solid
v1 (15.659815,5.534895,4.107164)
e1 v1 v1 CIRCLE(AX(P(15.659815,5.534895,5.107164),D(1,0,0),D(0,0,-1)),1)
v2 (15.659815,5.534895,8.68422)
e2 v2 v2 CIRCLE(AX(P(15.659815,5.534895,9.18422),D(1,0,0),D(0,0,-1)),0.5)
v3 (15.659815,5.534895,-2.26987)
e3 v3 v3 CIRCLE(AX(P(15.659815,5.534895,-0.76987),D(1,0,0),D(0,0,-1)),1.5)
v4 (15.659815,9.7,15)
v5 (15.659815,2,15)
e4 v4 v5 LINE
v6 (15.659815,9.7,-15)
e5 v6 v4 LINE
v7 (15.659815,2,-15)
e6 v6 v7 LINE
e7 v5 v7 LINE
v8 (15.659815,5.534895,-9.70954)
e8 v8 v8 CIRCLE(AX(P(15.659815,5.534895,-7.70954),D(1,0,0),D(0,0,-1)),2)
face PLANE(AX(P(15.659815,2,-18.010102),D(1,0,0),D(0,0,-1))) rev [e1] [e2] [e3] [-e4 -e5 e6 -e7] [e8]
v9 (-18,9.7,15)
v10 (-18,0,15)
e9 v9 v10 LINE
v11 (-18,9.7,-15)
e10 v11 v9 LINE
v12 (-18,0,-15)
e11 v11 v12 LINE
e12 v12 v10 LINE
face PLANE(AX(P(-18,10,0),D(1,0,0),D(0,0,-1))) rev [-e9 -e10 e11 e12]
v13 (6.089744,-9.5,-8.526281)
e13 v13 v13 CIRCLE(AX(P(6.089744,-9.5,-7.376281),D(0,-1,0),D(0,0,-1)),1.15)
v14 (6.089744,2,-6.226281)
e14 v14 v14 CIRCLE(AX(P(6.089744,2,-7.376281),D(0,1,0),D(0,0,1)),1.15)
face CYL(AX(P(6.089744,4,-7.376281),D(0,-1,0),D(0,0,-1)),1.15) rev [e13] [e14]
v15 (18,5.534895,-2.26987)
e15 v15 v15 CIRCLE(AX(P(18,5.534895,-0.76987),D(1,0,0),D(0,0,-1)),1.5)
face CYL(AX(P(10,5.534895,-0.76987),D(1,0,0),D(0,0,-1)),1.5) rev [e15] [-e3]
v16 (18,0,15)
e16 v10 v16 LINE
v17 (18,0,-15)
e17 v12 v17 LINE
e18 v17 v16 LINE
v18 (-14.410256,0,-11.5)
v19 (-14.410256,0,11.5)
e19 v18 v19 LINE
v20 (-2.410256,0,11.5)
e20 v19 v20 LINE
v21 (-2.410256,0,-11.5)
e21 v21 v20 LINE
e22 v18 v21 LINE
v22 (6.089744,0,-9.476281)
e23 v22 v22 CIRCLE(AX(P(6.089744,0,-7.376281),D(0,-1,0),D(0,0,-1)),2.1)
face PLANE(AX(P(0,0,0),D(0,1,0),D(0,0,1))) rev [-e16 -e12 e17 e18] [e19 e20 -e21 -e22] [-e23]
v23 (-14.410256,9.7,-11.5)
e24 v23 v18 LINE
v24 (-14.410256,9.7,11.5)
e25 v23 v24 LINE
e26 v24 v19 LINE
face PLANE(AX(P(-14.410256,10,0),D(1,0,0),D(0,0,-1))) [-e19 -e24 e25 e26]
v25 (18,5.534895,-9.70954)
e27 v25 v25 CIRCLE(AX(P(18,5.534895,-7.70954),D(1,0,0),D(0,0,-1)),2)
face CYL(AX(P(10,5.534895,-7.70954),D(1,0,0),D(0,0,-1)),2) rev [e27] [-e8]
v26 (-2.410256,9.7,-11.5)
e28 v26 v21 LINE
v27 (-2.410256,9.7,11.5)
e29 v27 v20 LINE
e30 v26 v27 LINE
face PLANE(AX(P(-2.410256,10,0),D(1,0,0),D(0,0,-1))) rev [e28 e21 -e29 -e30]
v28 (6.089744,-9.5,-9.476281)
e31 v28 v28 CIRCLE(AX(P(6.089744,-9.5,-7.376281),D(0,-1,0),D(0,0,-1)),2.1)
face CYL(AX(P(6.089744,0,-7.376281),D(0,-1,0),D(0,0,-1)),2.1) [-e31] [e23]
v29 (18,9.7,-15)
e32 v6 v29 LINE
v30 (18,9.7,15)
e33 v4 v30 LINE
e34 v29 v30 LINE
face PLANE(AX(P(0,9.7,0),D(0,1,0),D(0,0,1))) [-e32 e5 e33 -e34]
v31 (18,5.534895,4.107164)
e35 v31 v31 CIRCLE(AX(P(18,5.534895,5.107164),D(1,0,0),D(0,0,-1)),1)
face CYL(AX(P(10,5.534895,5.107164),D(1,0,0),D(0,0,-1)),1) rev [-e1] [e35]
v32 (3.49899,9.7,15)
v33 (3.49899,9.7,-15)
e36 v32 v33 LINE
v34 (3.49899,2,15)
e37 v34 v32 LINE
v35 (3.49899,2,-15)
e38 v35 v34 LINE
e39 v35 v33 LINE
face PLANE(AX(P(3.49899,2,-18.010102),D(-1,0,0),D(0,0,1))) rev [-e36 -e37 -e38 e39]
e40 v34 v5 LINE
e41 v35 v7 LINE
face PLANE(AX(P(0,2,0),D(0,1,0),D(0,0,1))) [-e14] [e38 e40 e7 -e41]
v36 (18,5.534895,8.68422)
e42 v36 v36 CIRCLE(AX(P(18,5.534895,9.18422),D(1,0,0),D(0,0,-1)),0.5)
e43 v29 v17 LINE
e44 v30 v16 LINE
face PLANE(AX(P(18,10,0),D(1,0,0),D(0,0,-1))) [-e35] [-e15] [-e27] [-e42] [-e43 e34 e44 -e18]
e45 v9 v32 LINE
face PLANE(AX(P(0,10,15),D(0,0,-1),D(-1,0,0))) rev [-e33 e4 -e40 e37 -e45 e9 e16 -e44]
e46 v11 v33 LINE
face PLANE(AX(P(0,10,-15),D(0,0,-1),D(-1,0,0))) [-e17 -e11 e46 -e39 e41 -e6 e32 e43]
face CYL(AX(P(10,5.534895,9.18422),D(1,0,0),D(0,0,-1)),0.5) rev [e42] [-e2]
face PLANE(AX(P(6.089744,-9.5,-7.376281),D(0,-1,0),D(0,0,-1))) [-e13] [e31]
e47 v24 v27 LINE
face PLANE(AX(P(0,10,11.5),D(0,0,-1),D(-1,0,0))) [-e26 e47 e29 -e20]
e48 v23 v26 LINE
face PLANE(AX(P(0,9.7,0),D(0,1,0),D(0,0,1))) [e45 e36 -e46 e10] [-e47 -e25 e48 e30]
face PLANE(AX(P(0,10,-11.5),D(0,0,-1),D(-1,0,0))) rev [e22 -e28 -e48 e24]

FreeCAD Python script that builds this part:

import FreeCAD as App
import Part
import Sketcher
Q = App.Units.Quantity

doc = App.newDocument("Part")
body = doc.addObject("PartDesign::Body", "Body")

# Sketch on XZ plane
sketch1 = body.newObject("Sketcher::SketchObject", "Sketch")
sketch1.AttachmentSupport = (doc.getObject("XZ_Plane"), [""])
sketch1.MapMode = "FlatFace"
sketch1.addGeometry([
    Part.LineSegment(App.Vector(-18, -15, 0), App.Vector(-18, 15, 0)),  # 0
    Part.LineSegment(App.Vector(-18, 15, 0), App.Vector(18, 15, 0)),  # 1
    Part.LineSegment(App.Vector(18, 15, 0), App.Vector(18, -15, 0)),  # 2
    Part.LineSegment(App.Vector(18, -15, 0), App.Vector(-18, -15, 0)),  # 3
    Part.LineSegment(App.Vector(-2, 12, 0), App.Vector(-14, 12, 0)),  # 4
    Part.LineSegment(App.Vector(-14, 12, 0), App.Vector(-14, -12, 0)),  # 5
    Part.LineSegment(App.Vector(-14, -12, 0), App.Vector(-2, -12, 0)),  # 6
    Part.LineSegment(App.Vector(-2, -12, 0), App.Vector(-2, 12, 0)),  # 7
], False)
sketch1.addConstraint([
    Sketcher.Constraint("Coincident", 0, 2, 1, 1),
    Sketcher.Constraint("Coincident", 1, 2, 2, 1),
    Sketcher.Constraint("Coincident", 2, 2, 3, 1),
    Sketcher.Constraint("Coincident", 3, 2, 0, 1),
    Sketcher.Constraint("Coincident", 4, 2, 5, 1),
    Sketcher.Constraint("Coincident", 5, 2, 6, 1),
    Sketcher.Constraint("Coincident", 6, 2, 7, 1),
    Sketcher.Constraint("Coincident", 7, 2, 4, 1),
    Sketcher.Constraint("Vertical", 0),
    Sketcher.Constraint("Horizontal", 1),
    Sketcher.Constraint("Vertical", 2),
    Sketcher.Constraint("Horizontal", 3),
    Sketcher.Constraint("Horizontal", 4),
    Sketcher.Constraint("Vertical", 5),
    Sketcher.Constraint("Horizontal", 6),
    Sketcher.Constraint("Vertical", 7),
    Sketcher.Constraint("Symmetric", 0, 2, 2, 2, -1, 1),
    Sketcher.Constraint("DistanceX", 1, 1, 1, 2, Q("36 mm")),
    Sketcher.Constraint("DistanceX", 4, 2, 4, 1, Q("12 mm")),
    Sketcher.Constraint("DistanceY", 0, 1, 0, 2, Q("30 mm")),
    Sketcher.Constraint("DistanceY", 5, 2, 5, 1, Q("23 mm")),
    Sketcher.Constraint("DistanceY", -1, 1, 4, 2, Q("11.5 mm")),
    Sketcher.Constraint("DistanceX", 4, 2, -1, 1, Q("14.410256 mm")),
])
pad1 = body.newObject("PartDesign::Pad", "Pad")
pad1.Profile = sketch1
pad1.Length = 10
pad1.Reversed = True

# Sketch on XZ plane
sketch2 = body.newObject("Sketcher::SketchObject", "Sketch001")
sketch2.AttachmentSupport = (doc.getObject("XZ_Plane"), [""])
sketch2.MapMode = "FlatFace"
sketch2.addGeometry(Part.Circle(App.Vector(6.1, -7.4, 0), App.Vector(0, 0, 1), 2.5), False)
sketch2.addConstraint([
    Sketcher.Constraint("Diameter", 0, Q("5.1 mm")),
    Sketcher.Constraint("DistanceY", 0, 3, -1, 1, Q("7.376281 mm")),
    Sketcher.Constraint("DistanceX", -1, 1, 0, 3, Q("6.089744 mm")),
])
pad2 = body.newObject("PartDesign::Pad", "Pad001")
pad2.Profile = sketch2
pad2.Length = 6

# Sketch on XZ plane
sketch3 = body.newObject("Sketcher::SketchObject", "Sketch002")
sketch3.AttachmentSupport = (doc.getObject("XZ_Plane"), [""])
sketch3.MapMode = "FlatFace"
sketch3.AttachmentOffset = App.Placement(App.Vector(0, 0, -10), App.Rotation())
sketch3.addGeometry([
    Part.LineSegment(App.Vector(3, -18, 0), App.Vector(3, 17, 0)),
    Part.LineSegment(App.Vector(3, 17, 0), App.Vector(16, 17, 0)),
    Part.LineSegment(App.Vector(16, 17, 0), App.Vector(16, -18, 0)),
    Part.LineSegment(App.Vector(16, -18, 0), App.Vector(3, -18, 0)),
], False)
sketch3.addConstraint([
    Sketcher.Constraint("Coincident", 0, 2, 1, 1),
    Sketcher.Constraint("Coincident", 1, 2, 2, 1),
    Sketcher.Constraint("Coincident", 2, 2, 3, 1),
    Sketcher.Constraint("Coincident", 3, 2, 0, 1),
    Sketcher.Constraint("Vertical", 0),
    Sketcher.Constraint("Horizontal", 1),
    Sketcher.Constraint("Vertical", 2),
    Sketcher.Constraint("Horizontal", 3),
    Sketcher.Constraint("DistanceY", 0, 1, 0, 2, Q("34.6856 mm")),
    Sketcher.Constraint("DistanceY", -1, 1, 0, 2, Q("16.675498 mm")),
    Sketcher.Constraint("DistanceX", 1, 1, 1, 2, Q("12.160825 mm")),
    Sketcher.Constraint("DistanceX", -1, 1, 0, 2, Q("3.49899 mm")),
])
pocket1 = body.newObject("PartDesign::Pocket", "Pocket")
pocket1.Profile = sketch3
pocket1.Length = 8
pocket1.Reversed = True

# Sketch on YZ plane
sketch4 = body.newObject("Sketcher::SketchObject", "Sketch003")
sketch4.AttachmentSupport = (doc.getObject("YZ_Plane"), [""])
sketch4.MapMode = "FlatFace"
sketch4.AttachmentOffset = App.Placement(App.Vector(0, 0, 18), App.Rotation())
sketch4.addGeometry([
    Part.Circle(App.Vector(5.5, 9.2, 0), App.Vector(0, 0, 1), 0.5),
    Part.Circle(App.Vector(5.5, 5.1, 0), App.Vector(0, 0, 1), 1),
    Part.Circle(App.Vector(5.5, -0.8, 0), App.Vector(0, 0, 1), 1.5),
    Part.Circle(App.Vector(5.5, -7.7, 0), App.Vector(0, 0, 1), 2),
], False)
sketch4.addConstraint([
    Sketcher.Constraint("Vertical", 0, 3, 1, 3),
    Sketcher.Constraint("Vertical", 1, 3, 2, 3),
    Sketcher.Constraint("Vertical", 2, 3, 3, 3),
    Sketcher.Constraint("Diameter", 0, Q("1 mm")),
    Sketcher.Constraint("Diameter", 1, Q("2 mm")),
    Sketcher.Constraint("Diameter", 2, Q("3 mm")),
    Sketcher.Constraint("Diameter", 3, Q("4 mm")),
    Sketcher.Constraint("DistanceY", -1, 1, 0, 3, Q("9.18422 mm")),
    Sketcher.Constraint("DistanceY", 2, 3, -1, 1, Q("0.76987 mm")),
    Sketcher.Constraint("DistanceY", 3, 3, -1, 1, Q("7.70954 mm")),
    Sketcher.Constraint("DistanceX", -1, 1, 0, 3, Q("5.534895 mm")),
    Sketcher.Constraint("DistanceY", -1, 1, 1, 3, Q("5.107164 mm")),
])
pocket2 = body.newObject("PartDesign::Pocket", "Pocket001")
pocket2.Profile = sketch4
pocket2.Length = 8

# Sketch on XZ plane
sketch5 = body.newObject("Sketcher::SketchObject", "Sketch004")
sketch5.AttachmentSupport = (doc.getObject("XZ_Plane"), [""])
sketch5.MapMode = "FlatFace"
sketch5.AttachmentOffset = App.Placement(App.Vector(0, 0, 6), App.Rotation())
sketch5.addGeometry(Part.Circle(App.Vector(5.8, -7.1, 0), App.Vector(0, 0, 1), 4.4), False)
sketch5.addConstraint([
    Sketcher.Constraint("Diameter", 0, Q("8.835925 mm")),
    Sketcher.Constraint("DistanceX", -1, 1, 0, 3, Q("5.79539 mm")),
    Sketcher.Constraint("DistanceY", 0, 3, -1, 1, Q("7.12847 mm")),
])
pocket3 = body.newObject("PartDesign::Pocket", "Pocket002")
pocket3.Profile = sketch5
pocket3.Length = 0.1

# Sketch on XZ plane
sketch6 = body.newObject("Sketcher::SketchObject", "Sketch005")
sketch6.AttachmentSupport = (doc.getObject("XZ_Plane"), [""])
sketch6.MapMode = "FlatFace"
sketch6.AttachmentOffset = App.Placement(App.Vector(0, 0, 5.9), App.Rotation())
sketch6.addGeometry(Part.Circle(App.Vector(6, -7, 0), App.Vector(0, 0, 1), 5), False)
sketch6.addConstraint([
    Sketcher.Constraint("Diameter", 0, Q("10.106461 mm")),
    Sketcher.Constraint("DistanceY", 0, 3, -1, 1, Q("7.296859 mm")),
    Sketcher.Constraint("DistanceX", -1, 1, 0, 3, Q("5.767325 mm")),
])
pocket4 = body.newObject("PartDesign::Pocket", "Pocket003")
pocket4.Profile = sketch6
pocket4.Length = 1.4

# Sketch on XZ plane
sketch7 = body.newObject("Sketcher::SketchObject", "Sketch006")
sketch7.AttachmentSupport = (doc.getObject("XZ_Plane"), [""])
sketch7.MapMode = "FlatFace"
sketch7.AttachmentOffset = App.Placement(App.Vector(0, 0, 4.5), App.Rotation())
sketch7.addGeometry(Part.Circle(App.Vector(6.1, -7.4, 0), App.Vector(0, 0, 1), 1), False)
sketch7.addConstraint([
    Sketcher.Constraint("Diameter", 0, Q("2 mm")),
    Sketcher.Constraint("DistanceY", 0, 3, -1, 1, Q("7.376281 mm")),
    Sketcher.Constraint("DistanceX", -1, 1, 0, 3, Q("6.089744 mm")),
])
pocket5 = body.newObject("PartDesign::Pocket", "Pocket004")
pocket5.Profile = sketch7
pocket5.Length = 10

# Sketch on XZ plane
sketch8 = body.newObject("Sketcher::SketchObject", "Sketch007")
sketch8.AttachmentSupport = (doc.getObject("XZ_Plane"), [""])
sketch8.MapMode = "FlatFace"
sketch8.AttachmentOffset = App.Placement(App.Vector(0, 0, 4.5), App.Rotation())
sketch8.addGeometry([
    Part.Circle(App.Vector(6.1, -7.4, 0), App.Vector(0, 0, 1), 2.5),
    Part.Circle(App.Vector(6.1, -7.4, 0), App.Vector(0, 0, 1), 1),
], False)
sketch8.addConstraint([
    Sketcher.Constraint("Coincident", 1, 3, 0, 3),
    Sketcher.Constraint("Diameter", 1, Q("2 mm")),
    Sketcher.Constraint("Diameter", 0, Q("5.1 mm")),
    Sketcher.Constraint("DistanceY", 0, 3, -1, 1, Q("7.376281 mm")),
    Sketcher.Constraint("DistanceX", -1, 1, 0, 3, Q("6.089744 mm")),
])
pad3 = body.newObject("PartDesign::Pad", "Pad002")
pad3.Profile = sketch8
pad3.Length = 5

# Sketch on XZ plane
sketch9 = body.newObject("Sketcher::SketchObject", "Sketch008")
sketch9.AttachmentSupport = (doc.getObject("XZ_Plane"), [""])
sketch9.MapMode = "FlatFace"
sketch9.AttachmentOffset = App.Placement(App.Vector(0, 0, 9.5), App.Rotation())
sketch9.addGeometry([
    Part.LineSegment(App.Vector(-24.1, 21.1, 0), App.Vector(-24.1, -21.1, 0)),  # 0
    Part.LineSegment(App.Vector(-24.1, -21.1, 0), App.Vector(24.1, -21.1, 0)),  # 1
    Part.LineSegment(App.Vector(24.1, -21.1, 0), App.Vector(24.1, 21.1, 0)),  # 2
    Part.LineSegment(App.Vector(24.1, 21.1, 0), App.Vector(-24.1, 21.1, 0)),  # 3
    Part.Circle(App.Vector(6.1, -7.4, 0), App.Vector(0, 0, 1), 2.1),  # 4
], False)
sketch9.addConstraint([
    Sketcher.Constraint("Coincident", 0, 2, 1, 1),
    Sketcher.Constraint("Coincident", 1, 2, 2, 1),
    Sketcher.Constraint("Coincident", 2, 2, 3, 1),
    Sketcher.Constraint("Coincident", 3, 2, 0, 1),
    Sketcher.Constraint("Vertical", 0),
    Sketcher.Constraint("Horizontal", 1),
    Sketcher.Constraint("Vertical", 2),
    Sketcher.Constraint("Horizontal", 3),
    Sketcher.Constraint("Symmetric", 0, 2, 2, 2, -1, 1),
    Sketcher.Constraint("Diameter", 4, Q("4.2 mm")),
    Sketcher.Constraint("DistanceX", 1, 1, 1, 2, Q("48.152 mm")),
    Sketcher.Constraint("DistanceY", 0, 2, 0, 1, Q("42.152 mm")),
    Sketcher.Constraint("DistanceY", 4, 3, -1, 1, Q("7.376281 mm")),
    Sketcher.Constraint("DistanceX", -1, 1, 4, 3, Q("6.089744 mm")),
])
pocket6 = body.newObject("PartDesign::Pocket", "Pocket005")
pocket6.Profile = sketch9
pocket6.Length = 9.5

# Sketch on XZ plane
sketch10 = body.newObject("Sketcher::SketchObject", "Sketch009")
sketch10.AttachmentSupport = (doc.getObject("XZ_Plane"), [""])
sketch10.MapMode = "FlatFace"
sketch10.AttachmentOffset = App.Placement(App.Vector(0, 0, 9.5), App.Rotation())
sketch10.addGeometry(Part.Circle(App.Vector(6.1, -7.4, 0), App.Vector(0, 0, 1), 1.1), False)
sketch10.addConstraint([
    Sketcher.Constraint("Diameter", 0, Q("2.3 mm")),
    Sketcher.Constraint("DistanceY", 0, 3, -1, 1, Q("7.376281 mm")),
    Sketcher.Constraint("DistanceX", -1, 1, 0, 3, Q("6.089744 mm")),
])
pocket7 = body.newObject("PartDesign::Pocket", "Pocket006")
pocket7.Profile = sketch10
pocket7.Length = 13.5

# Sketch on XZ plane
sketch11 = body.newObject("Sketcher::SketchObject", "Sketch010")
sketch11.AttachmentSupport = (doc.getObject("XZ_Plane"), [""])
sketch11.MapMode = "FlatFace"
sketch11.AttachmentOffset = App.Placement(App.Vector(0, 0, -10), App.Rotation())
sketch11.addGeometry([
    Part.LineSegment(App.Vector(-78, -58, 0), App.Vector(-78, 22, 0)),
    Part.LineSegment(App.Vector(-78, 22, 0), App.Vector(24, 22, 0)),
    Part.LineSegment(App.Vector(24, 22, 0), App.Vector(24, -58, 0)),
    Part.LineSegment(App.Vector(24, -58, 0), App.Vector(-78, -58, 0)),
], False)
sketch11.addConstraint([
    Sketcher.Constraint("Coincident", 0, 2, 1, 1),
    Sketcher.Constraint("Coincident", 1, 2, 2, 1),
    Sketcher.Constraint("Coincident", 2, 2, 3, 1),
    Sketcher.Constraint("Coincident", 3, 2, 0, 1),
    Sketcher.Constraint("Vertical", 0),
    Sketcher.Constraint("Horizontal", 1),
    Sketcher.Constraint("Vertical", 2),
    Sketcher.Constraint("Horizontal", 3),
    Sketcher.Constraint("DistanceX", 1, 1, 1, 2, Q("102.678588 mm")),
    Sketcher.Constraint("DistanceY", 0, 1, 0, 2, Q("80.280274 mm")),
    Sketcher.Constraint("DistanceX", 0, 2, -1, 1, Q("78.457261 mm")),
    Sketcher.Constraint("DistanceY", -1, 1, 0, 2, Q("21.920587 mm")),
])
pocket8 = body.newObject("PartDesign::Pocket", "Pocket007")
pocket8.Profile = sketch11
pocket8.Length = 0.3
pocket8.Reversed = True

doc.recompute()
